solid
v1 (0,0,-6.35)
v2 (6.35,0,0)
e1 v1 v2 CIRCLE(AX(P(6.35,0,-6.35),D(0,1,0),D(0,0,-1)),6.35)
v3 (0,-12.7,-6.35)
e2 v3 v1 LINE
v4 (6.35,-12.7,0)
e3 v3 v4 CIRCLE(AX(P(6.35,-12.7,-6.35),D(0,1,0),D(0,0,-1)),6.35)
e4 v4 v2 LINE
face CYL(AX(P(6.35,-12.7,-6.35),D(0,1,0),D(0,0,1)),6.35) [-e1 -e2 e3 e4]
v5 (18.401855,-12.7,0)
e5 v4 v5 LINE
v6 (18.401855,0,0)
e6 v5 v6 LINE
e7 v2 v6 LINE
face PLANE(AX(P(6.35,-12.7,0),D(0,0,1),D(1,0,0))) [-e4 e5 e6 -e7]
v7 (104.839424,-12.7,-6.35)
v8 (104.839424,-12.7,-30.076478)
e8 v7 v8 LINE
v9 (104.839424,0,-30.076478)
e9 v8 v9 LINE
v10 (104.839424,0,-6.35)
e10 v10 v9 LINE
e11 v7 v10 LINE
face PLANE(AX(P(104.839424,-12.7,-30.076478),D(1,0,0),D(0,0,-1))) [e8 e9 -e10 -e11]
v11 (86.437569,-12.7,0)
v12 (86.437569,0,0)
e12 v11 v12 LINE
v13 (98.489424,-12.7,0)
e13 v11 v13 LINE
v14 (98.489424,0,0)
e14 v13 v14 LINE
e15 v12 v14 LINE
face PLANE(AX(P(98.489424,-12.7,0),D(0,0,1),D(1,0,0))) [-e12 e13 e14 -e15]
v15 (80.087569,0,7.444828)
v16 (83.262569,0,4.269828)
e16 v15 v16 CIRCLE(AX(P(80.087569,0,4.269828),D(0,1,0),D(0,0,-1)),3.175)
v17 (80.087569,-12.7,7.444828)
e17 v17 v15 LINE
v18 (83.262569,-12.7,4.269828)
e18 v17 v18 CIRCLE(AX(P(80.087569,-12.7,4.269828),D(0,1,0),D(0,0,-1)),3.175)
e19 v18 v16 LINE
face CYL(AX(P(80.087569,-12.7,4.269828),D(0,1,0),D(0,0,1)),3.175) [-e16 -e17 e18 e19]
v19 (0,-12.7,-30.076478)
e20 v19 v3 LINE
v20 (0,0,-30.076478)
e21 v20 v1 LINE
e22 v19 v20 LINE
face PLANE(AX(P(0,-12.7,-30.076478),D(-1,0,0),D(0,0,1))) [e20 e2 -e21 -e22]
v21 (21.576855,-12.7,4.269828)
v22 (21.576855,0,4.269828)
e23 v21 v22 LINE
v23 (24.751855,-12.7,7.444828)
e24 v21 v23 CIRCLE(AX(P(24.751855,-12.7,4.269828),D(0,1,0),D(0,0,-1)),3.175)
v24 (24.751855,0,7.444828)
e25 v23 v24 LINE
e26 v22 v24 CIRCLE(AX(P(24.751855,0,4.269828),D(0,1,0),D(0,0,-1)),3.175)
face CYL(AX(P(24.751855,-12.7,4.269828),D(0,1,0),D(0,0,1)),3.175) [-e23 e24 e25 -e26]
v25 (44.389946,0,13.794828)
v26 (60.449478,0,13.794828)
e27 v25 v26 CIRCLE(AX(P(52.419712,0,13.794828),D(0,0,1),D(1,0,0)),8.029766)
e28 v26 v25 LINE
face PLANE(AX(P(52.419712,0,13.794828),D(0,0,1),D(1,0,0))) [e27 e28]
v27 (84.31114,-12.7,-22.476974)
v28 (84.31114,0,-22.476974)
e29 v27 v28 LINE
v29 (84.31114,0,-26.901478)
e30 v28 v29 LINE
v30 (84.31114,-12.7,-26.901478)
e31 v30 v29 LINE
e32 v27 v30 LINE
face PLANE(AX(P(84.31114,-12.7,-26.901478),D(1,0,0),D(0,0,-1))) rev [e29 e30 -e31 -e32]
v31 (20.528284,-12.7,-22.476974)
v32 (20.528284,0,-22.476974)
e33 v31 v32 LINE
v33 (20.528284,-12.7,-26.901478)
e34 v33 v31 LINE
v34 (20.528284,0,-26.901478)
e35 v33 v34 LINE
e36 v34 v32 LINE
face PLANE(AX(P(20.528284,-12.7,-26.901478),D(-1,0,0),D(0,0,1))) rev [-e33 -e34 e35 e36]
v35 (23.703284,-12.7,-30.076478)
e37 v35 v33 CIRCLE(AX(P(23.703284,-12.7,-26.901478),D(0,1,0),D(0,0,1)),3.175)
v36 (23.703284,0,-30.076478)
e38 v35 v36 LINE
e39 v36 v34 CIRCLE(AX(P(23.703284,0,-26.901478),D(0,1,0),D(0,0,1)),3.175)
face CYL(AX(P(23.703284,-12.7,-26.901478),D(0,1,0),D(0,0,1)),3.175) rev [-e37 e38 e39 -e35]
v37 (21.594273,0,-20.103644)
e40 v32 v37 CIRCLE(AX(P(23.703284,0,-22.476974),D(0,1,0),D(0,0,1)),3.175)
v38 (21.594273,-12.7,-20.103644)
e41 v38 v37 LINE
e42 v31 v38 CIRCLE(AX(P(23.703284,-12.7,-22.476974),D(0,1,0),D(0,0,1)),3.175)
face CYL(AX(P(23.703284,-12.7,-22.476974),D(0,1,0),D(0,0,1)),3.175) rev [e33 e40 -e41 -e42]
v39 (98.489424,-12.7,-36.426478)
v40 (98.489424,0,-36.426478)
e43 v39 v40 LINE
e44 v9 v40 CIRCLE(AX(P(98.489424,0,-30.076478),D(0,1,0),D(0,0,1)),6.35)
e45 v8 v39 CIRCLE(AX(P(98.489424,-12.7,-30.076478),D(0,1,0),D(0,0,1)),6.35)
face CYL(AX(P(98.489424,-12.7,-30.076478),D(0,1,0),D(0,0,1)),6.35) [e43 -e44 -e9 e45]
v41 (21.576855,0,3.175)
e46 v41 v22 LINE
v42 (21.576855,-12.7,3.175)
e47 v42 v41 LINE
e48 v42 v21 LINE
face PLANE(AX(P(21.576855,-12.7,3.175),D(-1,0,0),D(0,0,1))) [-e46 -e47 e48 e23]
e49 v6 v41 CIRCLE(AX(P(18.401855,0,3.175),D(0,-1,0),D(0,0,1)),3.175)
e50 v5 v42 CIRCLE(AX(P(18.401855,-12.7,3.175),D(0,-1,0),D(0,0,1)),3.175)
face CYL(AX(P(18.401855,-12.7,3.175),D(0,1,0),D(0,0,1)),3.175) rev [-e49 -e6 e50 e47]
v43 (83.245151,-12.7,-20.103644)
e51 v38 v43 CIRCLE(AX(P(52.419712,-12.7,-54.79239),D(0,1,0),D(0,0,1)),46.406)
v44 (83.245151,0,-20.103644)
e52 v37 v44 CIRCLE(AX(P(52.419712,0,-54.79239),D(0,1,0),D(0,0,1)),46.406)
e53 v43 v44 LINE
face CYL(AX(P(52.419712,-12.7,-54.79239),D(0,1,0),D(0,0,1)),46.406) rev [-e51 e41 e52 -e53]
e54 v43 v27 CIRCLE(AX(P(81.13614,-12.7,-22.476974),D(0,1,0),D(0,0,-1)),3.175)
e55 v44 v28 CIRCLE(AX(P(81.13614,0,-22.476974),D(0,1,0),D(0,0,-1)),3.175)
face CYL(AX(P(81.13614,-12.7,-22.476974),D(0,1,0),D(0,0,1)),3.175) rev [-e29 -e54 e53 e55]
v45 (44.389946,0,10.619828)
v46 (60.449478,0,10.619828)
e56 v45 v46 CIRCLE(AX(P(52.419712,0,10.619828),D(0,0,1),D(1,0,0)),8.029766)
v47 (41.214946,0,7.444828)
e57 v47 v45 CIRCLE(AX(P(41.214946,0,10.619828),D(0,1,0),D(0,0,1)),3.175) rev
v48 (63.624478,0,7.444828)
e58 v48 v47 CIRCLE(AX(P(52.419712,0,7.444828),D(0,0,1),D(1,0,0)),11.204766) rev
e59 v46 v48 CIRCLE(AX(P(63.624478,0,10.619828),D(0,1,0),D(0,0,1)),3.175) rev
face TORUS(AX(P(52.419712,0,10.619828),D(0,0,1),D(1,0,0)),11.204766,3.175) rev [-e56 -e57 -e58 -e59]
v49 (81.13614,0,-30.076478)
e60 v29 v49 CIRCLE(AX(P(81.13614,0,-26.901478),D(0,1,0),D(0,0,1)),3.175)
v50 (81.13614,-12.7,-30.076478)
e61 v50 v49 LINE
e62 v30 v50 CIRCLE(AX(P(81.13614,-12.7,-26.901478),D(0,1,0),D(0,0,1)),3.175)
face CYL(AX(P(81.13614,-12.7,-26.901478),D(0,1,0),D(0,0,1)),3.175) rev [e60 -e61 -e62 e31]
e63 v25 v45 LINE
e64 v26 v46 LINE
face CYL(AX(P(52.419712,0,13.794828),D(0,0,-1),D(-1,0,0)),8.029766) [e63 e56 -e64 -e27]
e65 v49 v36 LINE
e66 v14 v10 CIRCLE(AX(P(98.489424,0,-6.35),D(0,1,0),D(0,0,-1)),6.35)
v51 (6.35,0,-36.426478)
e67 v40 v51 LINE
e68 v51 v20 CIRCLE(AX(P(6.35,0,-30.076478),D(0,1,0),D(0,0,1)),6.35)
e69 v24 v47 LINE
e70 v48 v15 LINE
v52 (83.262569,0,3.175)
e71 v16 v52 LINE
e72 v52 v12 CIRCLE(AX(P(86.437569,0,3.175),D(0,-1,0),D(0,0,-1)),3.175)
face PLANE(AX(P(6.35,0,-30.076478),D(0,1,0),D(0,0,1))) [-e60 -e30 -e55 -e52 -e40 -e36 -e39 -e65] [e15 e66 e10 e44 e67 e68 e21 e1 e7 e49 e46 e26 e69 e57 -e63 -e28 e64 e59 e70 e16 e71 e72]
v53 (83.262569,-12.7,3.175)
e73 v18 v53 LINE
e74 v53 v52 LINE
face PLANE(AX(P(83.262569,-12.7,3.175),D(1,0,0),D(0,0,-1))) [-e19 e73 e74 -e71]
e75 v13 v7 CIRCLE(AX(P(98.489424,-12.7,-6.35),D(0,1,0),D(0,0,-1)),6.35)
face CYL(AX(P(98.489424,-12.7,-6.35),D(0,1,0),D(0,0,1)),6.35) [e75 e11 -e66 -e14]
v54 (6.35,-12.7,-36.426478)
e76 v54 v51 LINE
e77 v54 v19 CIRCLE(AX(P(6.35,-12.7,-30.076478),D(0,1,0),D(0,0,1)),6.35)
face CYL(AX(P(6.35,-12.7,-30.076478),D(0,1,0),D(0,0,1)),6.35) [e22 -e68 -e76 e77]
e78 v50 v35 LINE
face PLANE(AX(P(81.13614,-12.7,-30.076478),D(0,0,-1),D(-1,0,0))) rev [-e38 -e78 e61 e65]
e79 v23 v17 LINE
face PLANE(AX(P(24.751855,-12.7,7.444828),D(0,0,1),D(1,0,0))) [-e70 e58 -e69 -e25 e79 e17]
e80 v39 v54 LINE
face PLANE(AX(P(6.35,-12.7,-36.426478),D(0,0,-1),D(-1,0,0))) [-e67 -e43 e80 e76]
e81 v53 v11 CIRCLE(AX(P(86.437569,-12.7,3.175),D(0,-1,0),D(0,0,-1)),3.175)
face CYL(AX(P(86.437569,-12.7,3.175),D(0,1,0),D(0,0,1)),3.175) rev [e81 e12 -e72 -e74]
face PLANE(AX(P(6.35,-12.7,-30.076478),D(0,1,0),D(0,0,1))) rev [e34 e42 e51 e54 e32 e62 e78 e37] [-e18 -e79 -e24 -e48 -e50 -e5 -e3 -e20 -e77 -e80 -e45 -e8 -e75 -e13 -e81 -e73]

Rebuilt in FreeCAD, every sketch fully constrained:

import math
import FreeCAD as App
import Part
import Sketcher

V = App.Vector
Q = App.Units.Quantity


def edges_at(feature, points):
    """Names of the edges that pass closest to the given points."""
    edges = feature.Shape.Edges
    near = lambda p: min(range(len(edges)), key=lambda i: edges[i].distToShape(Part.Vertex(*p))[0])
    return sorted({f"Edge{near(p) + 1}" for p in points})

doc = App.newDocument("Part")
body = doc.addObject("PartDesign::Body", "Body")

sketch1 = body.newObject("Sketcher::SketchObject", "Sketch")
sketch1.AttachmentSupport = (doc.getObject("XZ_Plane"), [""])
sketch1.MapMode = "FlatFace"
sketch1.addGeometry(Part.LineSegment(V(0, -30.1, 0), V(0, -6.3, 0)), False)
sketch1.addGeometry(Part.ArcOfCircle(Part.Circle(V(6.3, -6.3, 0), V(0, 0, 1), 6.3), math.radians(90), math.radians(180)), False)
sketch1.addGeometry(Part.LineSegment(V(6.3, 0, 0), V(18.4, 0, 0)), False)
sketch1.addGeometry(Part.ArcOfCircle(Part.Circle(V(18.4, 3.2, 0), V(0, 0, 1), 3.2), math.radians(-90), math.radians(0)), False)
sketch1.addGeometry(Part.LineSegment(V(21.6, 3.2, 0), V(21.6, 4.3, 0)), False)
sketch1.addGeometry(Part.ArcOfCircle(Part.Circle(V(24.8, 4.3, 0), V(0, 0, 1), 3.2), math.radians(90), math.radians(180)), False)
sketch1.addGeometry(Part.LineSegment(V(24.8, 7.4, 0), V(80.1, 7.4, 0)), False)
sketch1.addGeometry(Part.ArcOfCircle(Part.Circle(V(80.1, 4.3, 0), V(0, 0, 1), 3.2), math.radians(0), math.radians(90)), False)
sketch1.addGeometry(Part.LineSegment(V(83.3, 4.3, 0), V(83.3, 3.2, 0)), False)
sketch1.addGeometry(Part.ArcOfCircle(Part.Circle(V(86.4, 3.2, 0), V(0, 0, 1), 3.2), math.radians(-180), math.radians(-90)), False)
sketch1.addGeometry(Part.LineSegment(V(86.4, 0, 0), V(98.5, 0, 0)), False)
sketch1.addGeometry(Part.ArcOfCircle(Part.Circle(V(98.5, -6.3, 0), V(0, 0, 1), 6.3), math.radians(0), math.radians(90)), False)
sketch1.addGeometry(Part.LineSegment(V(104.8, -6.3, 0), V(104.8, -30.1, 0)), False)
sketch1.addGeometry(Part.ArcOfCircle(Part.Circle(V(98.5, -30.1, 0), V(0, 0, 1), 6.4), math.radians(-90), math.radians(0)), False)
sketch1.addGeometry(Part.LineSegment(V(98.5, -36.4, 0), V(6.3, -36.4, 0)), False)
sketch1.addGeometry(Part.ArcOfCircle(Part.Circle(V(6.3, -30.1, 0), V(0, 0, 1), 6.3), math.radians(180), math.radians(270)), False)
sketch1.addGeometry(Part.LineSegment(V(23.7, -30.1, 0), V(81.1, -30.1, 0)), False)
sketch1.addGeometry(Part.ArcOfCircle(Part.Circle(V(81.1, -26.9, 0), V(0, 0, 1), 3.2), math.radians(-90), math.radians(0)), False)
sketch1.addGeometry(Part.LineSegment(V(84.3, -26.9, 0), V(84.3, -22.5, 0)), False)
sketch1.addGeometry(Part.ArcOfCircle(Part.Circle(V(81.1, -22.5, 0), V(0, 0, 1), 3.2), math.radians(0), math.radians(48)), False)
sketch1.addGeometry(Part.ArcOfCircle(Part.Circle(V(52.4, -54.8, 0), V(0, 0, 1), 46.4), math.radians(48), math.radians(132)), False)
sketch1.addGeometry(Part.ArcOfCircle(Part.Circle(V(23.7, -22.5, 0), V(0, 0, 1), 3.2), math.radians(132), math.radians(180)), False)
sketch1.addGeometry(Part.LineSegment(V(20.5, -22.5, 0), V(20.5, -26.9, 0)), False)
sketch1.addGeometry(Part.ArcOfCircle(Part.Circle(V(23.7, -26.9, 0), V(0, 0, 1), 3.2), math.radians(-180), math.radians(-90)), False)
sketch1.addConstraint(Sketcher.Constraint("Tangent", 0, 2, 1, 2))
sketch1.addConstraint(Sketcher.Constraint("Tangent", 1, 1, 2, 1))
sketch1.addConstraint(Sketcher.Constraint("Tangent", 2, 2, 3, 1))
sketch1.addConstraint(Sketcher.Constraint("Tangent", 3, 2, 4, 1))
sketch1.addConstraint(Sketcher.Constraint("Tangent", 4, 2, 5, 2))
sketch1.addConstraint(Sketcher.Constraint("Tangent", 5, 1, 6, 1))
sketch1.addConstraint(Sketcher.Constraint("Tangent", 6, 2, 7, 2))
sketch1.addConstraint(Sketcher.Constraint("Tangent", 7, 1, 8, 1))
sketch1.addConstraint(Sketcher.Constraint("Tangent", 8, 2, 9, 1))
sketch1.addConstraint(Sketcher.Constraint("Tangent", 9, 2, 10, 1))
sketch1.addConstraint(Sketcher.Constraint("Tangent", 10, 2, 11, 2))
sketch1.addConstraint(Sketcher.Constraint("Tangent", 11, 1, 12, 1))
sketch1.addConstraint(Sketcher.Constraint("Tangent", 12, 2, 13, 2))
sketch1.addConstraint(Sketcher.Constraint("Tangent", 13, 1, 14, 1))
sketch1.addConstraint(Sketcher.Constraint("Tangent", 14, 2, 15, 2))
sketch1.addConstraint(Sketcher.Constraint("Tangent", 15, 1, 0, 1))
sketch1.addConstraint(Sketcher.Constraint("Tangent", 16, 2, 17, 1))
sketch1.addConstraint(Sketcher.Constraint("Tangent", 17, 2, 18, 1))
sketch1.addConstraint(Sketcher.Constraint("Tangent", 18, 2, 19, 1))
sketch1.addConstraint(Sketcher.Constraint("Tangent", 19, 2, 20, 1))
sketch1.addConstraint(Sketcher.Constraint("Tangent", 20, 2, 21, 1))
sketch1.addConstraint(Sketcher.Constraint("Tangent", 21, 2, 22, 1))
sketch1.addConstraint(Sketcher.Constraint("Tangent", 22, 2, 23, 1))
sketch1.addConstraint(Sketcher.Constraint("Tangent", 23, 2, 16, 1))
sketch1.addConstraint(Sketcher.Constraint("Vertical", 0))
sketch1.addConstraint(Sketcher.Constraint("Horizontal", 2))
sketch1.addConstraint(Sketcher.Constraint("Vertical", 4))
sketch1.addConstraint(Sketcher.Constraint("Horizontal", 6))
sketch1.addConstraint(Sketcher.Constraint("Vertical", 8))
sketch1.addConstraint(Sketcher.Constraint("Horizontal", 10))
sketch1.addConstraint(Sketcher.Constraint("Vertical", 12))
sketch1.addConstraint(Sketcher.Constraint("Horizontal", 14))
sketch1.addConstraint(Sketcher.Constraint("Horizontal", 16))
sketch1.addConstraint(Sketcher.Constraint("Vertical", 18))
sketch1.addConstraint(Sketcher.Constraint("Vertical", 22))
sketch1.addConstraint(Sketcher.Constraint("Equal", 3, 5))
sketch1.addConstraint(Sketcher.Constraint("Equal", 5, 7))
sketch1.addConstraint(Sketcher.Constraint("Equal", 7, 9))
sketch1.addConstraint(Sketcher.Constraint("Equal", 1, 11))
sketch1.addConstraint(Sketcher.Constraint("Equal", 11, 13))
sketch1.addConstraint(Sketcher.Constraint("Equal", 13, 15))
sketch1.addConstraint(Sketcher.Constraint("Equal", 9, 17))
sketch1.addConstraint(Sketcher.Constraint("Equal", 17, 19))
sketch1.addConstraint(Sketcher.Constraint("Equal", 19, 21))
sketch1.addConstraint(Sketcher.Constraint("Equal", 21, 23))
sketch1.addConstraint(Sketcher.Constraint("PointOnObject", 0, 2, -2))
sketch1.addConstraint(Sketcher.Constraint("PointOnObject", 1, 1, -1))
sketch1.addConstraint(Sketcher.Constraint("PointOnObject", 9, 2, -1))
sketch1.addConstraint(Sketcher.Constraint("Horizontal", 19, 3, 21, 3))
sketch1.addConstraint(Sketcher.Constraint("Horizontal", 15, 1, 16, 2))
sketch1.addConstraint(Sketcher.Constraint("Equal", 2, 10))
sketch1.addConstraint(Sketcher.Constraint("Radius", 1, Q("0.25 in")))
sketch1.addConstraint(Sketcher.Constraint("Radius", 3, Q("0.125 in")))
sketch1.addConstraint(Sketcher.Constraint("Radius", 20, 46.406))
sketch1.addConstraint(Sketcher.Constraint("DistanceX", -1, 1, 21, 3, Q("0.9332002 in")))
sketch1.addConstraint(Sketcher.Constraint("DistanceX", 17, 3, 13, 3, Q("0.6832002 in")))
sketch1.addConstraint(Sketcher.Constraint("DistanceY", 19, 3, 7, 3, 26.746802))
sketch1.addConstraint(Sketcher.Constraint("DistanceX", 2, 1, 2, 2, 12.051855))
sketch1.addConstraint(Sketcher.Constraint("DistanceX", 6, 1, 6, 2, 55.335714))
sketch1.addConstraint(Sketcher.Constraint("DistanceY", 0, 1, 0, 2, 23.726478))
sketch1.addConstraint(Sketcher.Constraint("DistanceY", 4, 1, 4, 2, 1.094828))
pad1 = body.newObject("PartDesign::Pad", "Pad")
pad1.Profile = sketch1
pad1.Length = Q("0.5 in")

sketch2 = body.newObject("Sketcher::SketchObject", "Sketch001")
sketch2.AttachmentSupport = (doc.getObject("XY_Plane"), [""])
sketch2.MapMode = "FlatFace"
sketch2.AttachmentOffset = App.Placement(V(0, 0, 7.444828), App.Rotation())
sketch2.addGeometry(Part.LineSegment(V(60, 0, 0), V(44, 0, 0)), False)
sketch2.addGeometry(Part.ArcOfCircle(Part.Circle(V(52, 0, 0), V(0, 0, 1), 8), math.radians(180), math.radians(360)), False)
sketch2.addConstraint(Sketcher.Constraint("Coincident", 0, 1, 1, 2))
sketch2.addConstraint(Sketcher.Constraint("Coincident", 1, 1, 0, 2))
sketch2.addConstraint(Sketcher.Constraint("Horizontal", 0))
sketch2.addConstraint(Sketcher.Constraint("PointOnObject", 1, 3, -1))
sketch2.addConstraint(Sketcher.Constraint("PointOnObject", 0, 1, -1))
sketch2.addConstraint(Sketcher.Constraint("Radius", 1, 8.029766))
sketch2.addConstraint(Sketcher.Constraint("DistanceX", -1, 1, 0, 1, 60.449478))
pad2 = body.newObject("PartDesign::Pad", "Pad001")
pad2.Profile = sketch2
pad2.Length = Q("0.25 in")
doc.recompute()

fillet = body.newObject("PartDesign::Fillet", "Fillet")
fillet.Base = (pad2, edges_at(pad2, [(52.42, -8.03, 7.445)]))
fillet.Radius = Q("0.125 in")

doc.recompute()
